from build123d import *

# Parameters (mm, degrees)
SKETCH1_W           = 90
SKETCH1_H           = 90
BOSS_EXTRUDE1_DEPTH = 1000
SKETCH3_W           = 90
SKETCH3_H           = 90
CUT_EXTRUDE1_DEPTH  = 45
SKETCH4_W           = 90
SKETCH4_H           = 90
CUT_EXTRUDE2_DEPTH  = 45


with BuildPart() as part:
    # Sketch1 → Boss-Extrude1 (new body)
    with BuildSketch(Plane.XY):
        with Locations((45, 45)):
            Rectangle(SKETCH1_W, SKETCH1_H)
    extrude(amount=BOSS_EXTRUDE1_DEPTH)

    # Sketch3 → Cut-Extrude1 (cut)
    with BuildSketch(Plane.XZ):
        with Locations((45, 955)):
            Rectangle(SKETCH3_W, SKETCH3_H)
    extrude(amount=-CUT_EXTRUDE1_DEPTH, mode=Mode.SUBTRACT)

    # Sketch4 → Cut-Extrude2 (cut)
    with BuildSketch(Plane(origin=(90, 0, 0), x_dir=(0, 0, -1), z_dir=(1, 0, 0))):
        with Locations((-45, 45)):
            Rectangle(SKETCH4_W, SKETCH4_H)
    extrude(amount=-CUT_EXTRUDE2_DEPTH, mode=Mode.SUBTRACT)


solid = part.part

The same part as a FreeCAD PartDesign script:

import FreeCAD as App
import Part
import Sketcher
from FreeCAD import Vector


def add_polygon(sketch, points):
    """Adds a closed chain of lines whose ends are joined by coincident constraints."""
    first, n = sketch.GeometryCount, len(points)
    for a, b in zip(points, points[1:] + points[:1]):
        sketch.addGeometry(Part.LineSegment(App.Vector(*a, 0), App.Vector(*b, 0)), False)
    for i in range(n):
        sketch.addConstraint(Sketcher.Constraint("Coincident", first + i, 2, first + (i + 1) % n, 1))

doc = App.newDocument("Part")
params = doc.addObject("Spreadsheet::Sheet", "Params")
for row, (alias, value) in enumerate([
    ("sketch1_width", "90 mm"),
    ("pad1_length", "1000 mm"),
    ("sketch2_width", "90 mm"),
    ("pocket1_length", "45 mm"),
    ("sketch3_width", "90 mm"),
    ("pocket2_length", "45 mm"),
], start=1):
    params.set(f"A{row}", alias)
    params.set(f"B{row}", "=" + value)
    params.setAlias(f"B{row}", alias)

body = doc.addObject("PartDesign::Body", "Body")

sketch1 = body.newObject("Sketcher::SketchObject", "Sketch")
sketch1.AttachmentSupport = (doc.getObject("XY_Plane"), [""])
sketch1.MapMode = "FlatFace"
add_polygon(sketch1, [(0, 90), (0, 0), (90, 0), (90, 90)])
sketch1.addConstraint([
    Sketcher.Constraint("Vertical", 0),
    Sketcher.Constraint("Horizontal", 1),
    Sketcher.Constraint("Vertical", 2),
    Sketcher.Constraint("Horizontal", 3),
    Sketcher.Constraint("Coincident", 0, 2, -1, 1),
    Sketcher.Constraint("Equal", 3, 0),
    Sketcher.Constraint("DistanceX", 1, 1, 1, 2, 90.0),
])
sketch1.setExpression("Constraints[10]", "Params.sketch1_width")
pad1 = body.newObject("PartDesign::Pad", "Pad")
pad1.Profile = sketch1
pad1.setExpression("Length", "Params.pad1_length")

sketch2 = body.newObject("Sketcher::SketchObject", "Sketch001")
sketch2.AttachmentSupport = (doc.getObject("XZ_Plane"), [""])
sketch2.MapMode = "FlatFace"
add_polygon(sketch2, [(0, 1000), (0, 910), (90, 910), (90, 1000)])
sketch2.addConstraint([
    Sketcher.Constraint("Vertical", 0),
    Sketcher.Constraint("Horizontal", 1),
    Sketcher.Constraint("Vertical", 2),
    Sketcher.Constraint("Horizontal", 3),
    Sketcher.Constraint("PointOnObject", 0, 2, -2),
    Sketcher.Constraint("Equal", 3, 0),
    Sketcher.Constraint("DistanceX", 1, 1, 1, 2, 90.0),
    Sketcher.Constraint("DistanceY", -1, 1, 0, 2, 910.0),
])
sketch2.setExpression("Constraints[10]", "Params.sketch2_width")
pocket1 = body.newObject("PartDesign::Pocket", "Pocket")
pocket1.Profile = sketch2
pocket1.setExpression("Length", "Params.pocket1_length")

sketch3 = body.newObject("Sketcher::SketchObject", "Sketch002")
sketch3.AttachmentSupport = (doc.getObject("YZ_Plane"), [""])
sketch3.MapMode = "FlatFace"
sketch3.AttachmentOffset = App.Placement(Vector(0, 0, 90), App.Rotation())
add_polygon(sketch3, [(90, 90), (0, 90), (0, 0), (90, 0)])
sketch3.addConstraint([
    Sketcher.Constraint("Horizontal", 0),
    Sketcher.Constraint("Vertical", 1),
    Sketcher.Constraint("Horizontal", 2),
    Sketcher.Constraint("Vertical", 3),
    Sketcher.Constraint("Coincident", 1, 2, -1, 1),
    Sketcher.Constraint("Equal", 2, 1),
    Sketcher.Constraint("DistanceX", 0, 2, 0, 1, 90.0),
])
sketch3.setExpression("Constraints[10]", "Params.sketch3_width")
pocket2 = body.newObject("PartDesign::Pocket", "Pocket001")
pocket2.Profile = sketch3
pocket2.setExpression("Length", "Params.pocket2_length")

doc.recompute()
